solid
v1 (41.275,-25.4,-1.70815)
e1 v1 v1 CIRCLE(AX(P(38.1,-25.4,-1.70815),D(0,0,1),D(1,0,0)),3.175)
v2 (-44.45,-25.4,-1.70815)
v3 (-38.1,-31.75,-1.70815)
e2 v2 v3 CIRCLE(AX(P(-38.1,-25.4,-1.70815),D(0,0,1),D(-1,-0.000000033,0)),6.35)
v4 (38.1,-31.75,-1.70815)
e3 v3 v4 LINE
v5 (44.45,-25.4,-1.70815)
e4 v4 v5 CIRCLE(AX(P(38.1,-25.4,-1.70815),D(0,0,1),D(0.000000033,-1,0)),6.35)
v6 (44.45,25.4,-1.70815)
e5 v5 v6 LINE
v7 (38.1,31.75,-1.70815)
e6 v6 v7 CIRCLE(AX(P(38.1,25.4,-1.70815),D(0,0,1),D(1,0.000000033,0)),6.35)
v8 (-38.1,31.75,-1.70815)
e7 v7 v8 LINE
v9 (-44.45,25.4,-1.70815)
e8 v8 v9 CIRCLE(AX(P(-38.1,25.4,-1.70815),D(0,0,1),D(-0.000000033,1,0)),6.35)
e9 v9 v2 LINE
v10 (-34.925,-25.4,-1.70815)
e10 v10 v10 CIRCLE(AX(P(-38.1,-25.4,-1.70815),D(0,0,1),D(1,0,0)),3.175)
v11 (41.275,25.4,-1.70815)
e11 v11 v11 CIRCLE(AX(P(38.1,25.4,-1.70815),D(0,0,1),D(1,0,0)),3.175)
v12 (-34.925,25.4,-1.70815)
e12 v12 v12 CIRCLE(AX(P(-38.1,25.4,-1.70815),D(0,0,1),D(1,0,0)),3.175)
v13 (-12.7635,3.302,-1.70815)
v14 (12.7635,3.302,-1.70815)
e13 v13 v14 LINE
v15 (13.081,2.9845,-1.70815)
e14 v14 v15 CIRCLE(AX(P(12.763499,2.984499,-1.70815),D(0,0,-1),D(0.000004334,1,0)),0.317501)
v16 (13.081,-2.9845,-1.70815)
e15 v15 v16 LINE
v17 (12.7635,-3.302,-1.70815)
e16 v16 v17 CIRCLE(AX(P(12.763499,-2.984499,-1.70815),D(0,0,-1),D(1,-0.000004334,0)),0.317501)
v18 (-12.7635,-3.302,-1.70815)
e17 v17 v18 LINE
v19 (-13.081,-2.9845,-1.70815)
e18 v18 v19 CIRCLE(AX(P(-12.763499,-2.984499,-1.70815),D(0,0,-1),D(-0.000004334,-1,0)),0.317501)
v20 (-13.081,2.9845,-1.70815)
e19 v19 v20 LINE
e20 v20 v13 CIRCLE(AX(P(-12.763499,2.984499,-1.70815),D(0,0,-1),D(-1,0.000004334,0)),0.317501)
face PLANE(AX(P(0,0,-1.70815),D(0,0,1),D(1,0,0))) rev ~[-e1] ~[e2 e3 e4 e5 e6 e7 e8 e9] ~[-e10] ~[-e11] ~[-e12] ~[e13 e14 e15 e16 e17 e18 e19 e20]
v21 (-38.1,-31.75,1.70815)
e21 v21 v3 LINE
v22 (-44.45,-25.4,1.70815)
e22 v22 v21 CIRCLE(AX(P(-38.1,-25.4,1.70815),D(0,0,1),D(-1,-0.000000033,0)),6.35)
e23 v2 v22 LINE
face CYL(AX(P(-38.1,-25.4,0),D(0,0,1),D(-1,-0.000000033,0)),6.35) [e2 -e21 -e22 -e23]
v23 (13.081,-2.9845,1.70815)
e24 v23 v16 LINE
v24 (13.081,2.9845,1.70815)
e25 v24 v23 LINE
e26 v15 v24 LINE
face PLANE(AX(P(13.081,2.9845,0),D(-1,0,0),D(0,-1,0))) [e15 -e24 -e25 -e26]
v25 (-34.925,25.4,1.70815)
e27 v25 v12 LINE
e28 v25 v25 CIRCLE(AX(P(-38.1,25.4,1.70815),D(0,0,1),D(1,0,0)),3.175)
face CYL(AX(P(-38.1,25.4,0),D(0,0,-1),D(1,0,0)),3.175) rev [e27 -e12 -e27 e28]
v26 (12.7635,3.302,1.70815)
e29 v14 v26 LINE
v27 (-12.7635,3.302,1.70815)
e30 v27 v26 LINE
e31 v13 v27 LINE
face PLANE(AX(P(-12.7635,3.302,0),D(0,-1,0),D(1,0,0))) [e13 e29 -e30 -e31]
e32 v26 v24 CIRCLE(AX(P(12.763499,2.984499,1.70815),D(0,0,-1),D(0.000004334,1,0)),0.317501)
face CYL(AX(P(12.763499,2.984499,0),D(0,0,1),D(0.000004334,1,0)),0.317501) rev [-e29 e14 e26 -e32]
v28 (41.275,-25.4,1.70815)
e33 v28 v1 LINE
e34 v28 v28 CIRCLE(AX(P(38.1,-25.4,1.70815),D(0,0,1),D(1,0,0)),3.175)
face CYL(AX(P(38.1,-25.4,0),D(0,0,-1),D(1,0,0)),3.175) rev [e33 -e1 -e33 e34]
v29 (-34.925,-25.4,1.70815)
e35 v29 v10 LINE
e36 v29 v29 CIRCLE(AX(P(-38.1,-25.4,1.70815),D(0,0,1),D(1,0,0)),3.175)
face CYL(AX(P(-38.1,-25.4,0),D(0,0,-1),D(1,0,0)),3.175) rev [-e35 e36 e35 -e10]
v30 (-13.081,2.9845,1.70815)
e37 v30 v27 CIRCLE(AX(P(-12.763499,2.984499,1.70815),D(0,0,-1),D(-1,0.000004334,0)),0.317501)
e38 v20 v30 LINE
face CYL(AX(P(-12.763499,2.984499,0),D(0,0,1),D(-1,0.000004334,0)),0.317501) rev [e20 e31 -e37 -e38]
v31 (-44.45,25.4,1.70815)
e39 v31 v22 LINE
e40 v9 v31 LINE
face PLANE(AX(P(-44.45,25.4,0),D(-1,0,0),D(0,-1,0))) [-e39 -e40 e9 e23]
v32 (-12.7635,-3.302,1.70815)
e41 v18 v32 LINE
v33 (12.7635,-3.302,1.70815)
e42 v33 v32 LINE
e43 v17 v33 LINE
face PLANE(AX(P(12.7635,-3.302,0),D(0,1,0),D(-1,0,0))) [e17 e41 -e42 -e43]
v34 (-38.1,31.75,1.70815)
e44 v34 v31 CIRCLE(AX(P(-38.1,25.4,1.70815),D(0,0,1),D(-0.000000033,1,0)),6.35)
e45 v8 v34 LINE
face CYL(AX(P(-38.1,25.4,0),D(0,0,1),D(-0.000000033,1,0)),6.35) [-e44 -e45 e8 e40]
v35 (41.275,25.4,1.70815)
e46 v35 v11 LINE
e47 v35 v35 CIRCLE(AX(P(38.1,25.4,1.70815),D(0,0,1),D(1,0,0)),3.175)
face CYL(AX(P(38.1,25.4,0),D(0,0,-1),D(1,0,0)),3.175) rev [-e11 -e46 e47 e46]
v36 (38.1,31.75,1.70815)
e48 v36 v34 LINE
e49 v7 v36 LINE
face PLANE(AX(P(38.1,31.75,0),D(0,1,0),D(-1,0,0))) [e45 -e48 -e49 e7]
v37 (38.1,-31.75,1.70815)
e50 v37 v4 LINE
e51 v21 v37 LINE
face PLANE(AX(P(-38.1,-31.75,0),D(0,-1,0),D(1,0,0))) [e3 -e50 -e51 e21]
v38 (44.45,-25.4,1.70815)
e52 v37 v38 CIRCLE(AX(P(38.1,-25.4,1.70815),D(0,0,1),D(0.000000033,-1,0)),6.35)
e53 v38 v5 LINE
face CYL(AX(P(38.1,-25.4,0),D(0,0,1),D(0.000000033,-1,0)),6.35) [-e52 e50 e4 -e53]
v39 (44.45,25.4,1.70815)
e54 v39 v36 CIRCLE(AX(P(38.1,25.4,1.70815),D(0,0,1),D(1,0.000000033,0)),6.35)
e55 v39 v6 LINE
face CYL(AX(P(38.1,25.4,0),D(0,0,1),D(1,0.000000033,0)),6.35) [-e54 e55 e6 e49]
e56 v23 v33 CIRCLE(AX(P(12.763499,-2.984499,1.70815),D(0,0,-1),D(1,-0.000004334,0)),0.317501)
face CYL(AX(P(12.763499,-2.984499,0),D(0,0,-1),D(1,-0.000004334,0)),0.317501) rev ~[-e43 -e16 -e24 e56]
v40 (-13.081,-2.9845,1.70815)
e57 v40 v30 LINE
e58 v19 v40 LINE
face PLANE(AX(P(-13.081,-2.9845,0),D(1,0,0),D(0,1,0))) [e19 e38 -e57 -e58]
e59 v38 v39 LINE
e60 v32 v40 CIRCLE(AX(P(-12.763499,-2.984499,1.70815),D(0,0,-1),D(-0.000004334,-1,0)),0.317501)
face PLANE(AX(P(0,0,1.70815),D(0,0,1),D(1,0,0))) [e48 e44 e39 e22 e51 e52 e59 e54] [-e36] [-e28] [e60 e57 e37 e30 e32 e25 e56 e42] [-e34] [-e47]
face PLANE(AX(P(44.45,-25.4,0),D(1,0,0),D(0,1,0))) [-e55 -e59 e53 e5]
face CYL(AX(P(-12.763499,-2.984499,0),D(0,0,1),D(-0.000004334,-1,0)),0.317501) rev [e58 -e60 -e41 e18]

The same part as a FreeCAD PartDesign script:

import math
import FreeCAD as App
import Part
import Sketcher
Q = App.Units.Quantity

doc = App.newDocument("Part")
body = doc.addObject("PartDesign::Body", "Body")

sketch1 = body.newObject("Sketcher::SketchObject", "Sketch")
sketch1.AttachmentSupport = (doc.getObject("XY_Plane"), [""])
sketch1.MapMode = "FlatFace"
sketch1.addGeometry(Part.ArcOfCircle(Part.Circle(App.Vector(38.1, 25.4, 0), App.Vector(0, 0, 1), 6.35), math.radians(0), math.radians(90)), False)
sketch1.addGeometry(Part.LineSegment(App.Vector(38.1, 31.75, 0), App.Vector(-38.1, 31.75, 0)), False)
sketch1.addGeometry(Part.ArcOfCircle(Part.Circle(App.Vector(-38.1, 25.4, 0), App.Vector(0, 0, 1), 6.35), math.radians(90), math.radians(180)), False)
sketch1.addGeometry(Part.LineSegment(App.Vector(-44.45, 25.4, 0), App.Vector(-44.45, -25.4, 0)), False)
sketch1.addGeometry(Part.ArcOfCircle(Part.Circle(App.Vector(-38.1, -25.4, 0), App.Vector(0, 0, 1), 6.35), math.radians(-180), math.radians(-90)), False)
sketch1.addGeometry(Part.LineSegment(App.Vector(-38.1, -31.75, 0), App.Vector(38.1, -31.75, 0)), False)
sketch1.addGeometry(Part.ArcOfCircle(Part.Circle(App.Vector(38.1, -25.4, 0), App.Vector(0, 0, 1), 6.35), math.radians(-90), math.radians(0)), False)
sketch1.addGeometry(Part.LineSegment(App.Vector(44.45, -25.4, 0), App.Vector(44.45, 25.4, 0)), False)
sketch1.addGeometry(Part.Circle(App.Vector(-38.1, -25.4, 0), App.Vector(0, 0, 1), 3.17), False)
sketch1.addGeometry(Part.Circle(App.Vector(38.1, -25.4, 0), App.Vector(0, 0, 1), 3.17), False)
sketch1.addGeometry(Part.ArcOfCircle(Part.Circle(App.Vector(-12.76, 2.98, 0), App.Vector(0, 0, 1), 0.32), math.radians(90), math.radians(180)), False)
sketch1.addGeometry(Part.LineSegment(App.Vector(-12.76, 3.3, 0), App.Vector(12.76, 3.3, 0)), False)
sketch1.addGeometry(Part.ArcOfCircle(Part.Circle(App.Vector(12.76, 2.98, 0), App.Vector(0, 0, 1), 0.32), math.radians(0), math.radians(90)), False)
sketch1.addGeometry(Part.LineSegment(App.Vector(13.08, 2.98, 0), App.Vector(13.08, -2.98, 0)), False)
sketch1.addGeometry(Part.ArcOfCircle(Part.Circle(App.Vector(12.76, -2.98, 0), App.Vector(0, 0, 1), 0.32), math.radians(-90), math.radians(0)), False)
sketch1.addGeometry(Part.LineSegment(App.Vector(12.76, -3.3, 0), App.Vector(-12.76, -3.3, 0)), False)
sketch1.addGeometry(Part.ArcOfCircle(Part.Circle(App.Vector(-12.76, -2.98, 0), App.Vector(0, 0, 1), 0.32), math.radians(-180), math.radians(-90)), False)
sketch1.addGeometry(Part.LineSegment(App.Vector(-13.08, -2.98, 0), App.Vector(-13.08, 2.98, 0)), False)
sketch1.addGeometry(Part.Circle(App.Vector(-38.1, 25.4, 0), App.Vector(0, 0, 1), 3.17), False)
sketch1.addGeometry(Part.Circle(App.Vector(38.1, 25.4, 0), App.Vector(0, 0, 1), 3.17), False)
sketch1.addConstraint(Sketcher.Constraint("Tangent", 0, 2, 1, 1))
sketch1.addConstraint(Sketcher.Constraint("Tangent", 1, 2, 2, 1))
sketch1.addConstraint(Sketcher.Constraint("Tangent", 2, 2, 3, 1))
sketch1.addConstraint(Sketcher.Constraint("Tangent", 3, 2, 4, 1))
sketch1.addConstraint(Sketcher.Constraint("Tangent", 4, 2, 5, 1))
sketch1.addConstraint(Sketcher.Constraint("Tangent", 5, 2, 6, 1))
sketch1.addConstraint(Sketcher.Constraint("Tangent", 6, 2, 7, 1))
sketch1.addConstraint(Sketcher.Constraint("Tangent", 7, 2, 0, 1))
sketch1.addConstraint(Sketcher.Constraint("Coincident", 10, 1, 11, 1))
sketch1.addConstraint(Sketcher.Constraint("Coincident", 11, 2, 12, 2))
sketch1.addConstraint(Sketcher.Constraint("Coincident", 12, 1, 13, 1))
sketch1.addConstraint(Sketcher.Constraint("Coincident", 13, 2, 14, 2))
sketch1.addConstraint(Sketcher.Constraint("Coincident", 14, 1, 15, 1))
sketch1.addConstraint(Sketcher.Constraint("Coincident", 15, 2, 16, 2))
sketch1.addConstraint(Sketcher.Constraint("Coincident", 16, 1, 17, 1))
sketch1.addConstraint(Sketcher.Constraint("Coincident", 17, 2, 10, 2))
sketch1.addConstraint(Sketcher.Constraint("Horizontal", 1))
sketch1.addConstraint(Sketcher.Constraint("Vertical", 3))
sketch1.addConstraint(Sketcher.Constraint("Horizontal", 5))
sketch1.addConstraint(Sketcher.Constraint("Vertical", 7))
sketch1.addConstraint(Sketcher.Constraint("Horizontal", 11))
sketch1.addConstraint(Sketcher.Constraint("Vertical", 13))
sketch1.addConstraint(Sketcher.Constraint("Horizontal", 15))
sketch1.addConstraint(Sketcher.Constraint("Vertical", 17))
sketch1.addConstraint(Sketcher.Constraint("Coincident", 8, 3, 4, 3))
sketch1.addConstraint(Sketcher.Constraint("Coincident", 9, 3, 6, 3))
sketch1.addConstraint(Sketcher.Constraint("Coincident", 18, 3, 2, 3))
sketch1.addConstraint(Sketcher.Constraint("Coincident", 19, 3, 0, 3))
sketch1.addConstraint(Sketcher.Constraint("Equal", 0, 2))
sketch1.addConstraint(Sketcher.Constraint("Equal", 2, 4))
sketch1.addConstraint(Sketcher.Constraint("Equal", 4, 6))
sketch1.addConstraint(Sketcher.Constraint("Equal", 8, 9))
sketch1.addConstraint(Sketcher.Constraint("Equal", 10, 12))
sketch1.addConstraint(Sketcher.Constraint("Equal", 12, 14))
sketch1.addConstraint(Sketcher.Constraint("Equal", 14, 16))
sketch1.addConstraint(Sketcher.Constraint("Equal", 9, 18))
sketch1.addConstraint(Sketcher.Constraint("Equal", 18, 19))
sketch1.addConstraint(Sketcher.Constraint("Symmetric", 0, 3, 4, 3, -1, 1))
sketch1.addConstraint(Sketcher.Constraint("Symmetric", 10, 3, 14, 3, -1, 1))
sketch1.addConstraint(Sketcher.Constraint("Horizontal", 10, 3, 12, 1))
sketch1.addConstraint(Sketcher.Constraint("Horizontal", 16, 3, 13, 2))
sketch1.addConstraint(Sketcher.Constraint("Horizontal", 13, 2, 16, 1))
sketch1.addConstraint(Sketcher.Constraint("Horizontal", 12, 1, 17, 2))
sketch1.addConstraint(Sketcher.Constraint("Vertical", 16, 3, 10, 1))
sketch1.addConstraint(Sketcher.Constraint("Vertical", 14, 3, 11, 2))
sketch1.addConstraint(Sketcher.Constraint("Vertical", 11, 2, 14, 1))
sketch1.addConstraint(Sketcher.Constraint("Vertical", 10, 1, 15, 2))
sketch1.addConstraint(Sketcher.Constraint("Diameter", 8, Q("0.25 in")))
sketch1.addConstraint(Sketcher.Constraint("DistanceX", 1, 2, 1, 1, Q("3 in")))
sketch1.addConstraint(Sketcher.Constraint("DistanceY", 3, 2, 3, 1, Q("2 in")))
sketch1.addConstraint(Sketcher.Constraint("Radius", 0, Q("0.25 in")))
sketch1.addConstraint(Sketcher.Constraint("Radius", 10, Q("0.0125001 in")))
sketch1.addConstraint(Sketcher.Constraint("DistanceX", 11, 1, 11, 2, Q("1.005 in")))
sketch1.addConstraint(Sketcher.Constraint("DistanceY", 13, 2, 13, 1, Q("0.235 in")))
pad1 = body.newObject("PartDesign::Pad", "Pad")
pad1.Profile = sketch1
pad1.Length = Q("0.1345 in")
pad1.Midplane = True

doc.recompute()
